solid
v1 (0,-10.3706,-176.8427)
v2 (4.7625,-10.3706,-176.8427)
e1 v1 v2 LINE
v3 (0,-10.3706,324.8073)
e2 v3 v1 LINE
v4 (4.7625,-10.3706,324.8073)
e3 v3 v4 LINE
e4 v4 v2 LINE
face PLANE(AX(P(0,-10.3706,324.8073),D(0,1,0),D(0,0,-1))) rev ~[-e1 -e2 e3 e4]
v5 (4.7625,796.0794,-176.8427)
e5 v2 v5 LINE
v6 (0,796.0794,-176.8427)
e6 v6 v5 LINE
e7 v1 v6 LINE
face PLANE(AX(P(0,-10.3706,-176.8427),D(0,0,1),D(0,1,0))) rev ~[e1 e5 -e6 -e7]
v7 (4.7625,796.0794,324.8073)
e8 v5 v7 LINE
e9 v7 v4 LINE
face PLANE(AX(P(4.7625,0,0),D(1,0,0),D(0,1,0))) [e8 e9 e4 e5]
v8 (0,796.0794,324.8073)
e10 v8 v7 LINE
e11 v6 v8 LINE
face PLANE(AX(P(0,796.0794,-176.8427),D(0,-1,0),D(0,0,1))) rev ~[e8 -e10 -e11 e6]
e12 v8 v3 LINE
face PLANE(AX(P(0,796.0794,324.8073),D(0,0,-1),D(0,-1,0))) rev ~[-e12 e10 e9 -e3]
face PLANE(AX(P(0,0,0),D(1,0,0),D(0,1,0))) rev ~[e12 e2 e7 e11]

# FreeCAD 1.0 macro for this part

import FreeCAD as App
import Part
import Sketcher
from FreeCAD import Vector
Q = App.Units.Quantity

doc = App.newDocument("Part")
body = doc.addObject("PartDesign::Body", "Body")

# Sketch on YZ plane
sketch1 = body.newObject("Sketcher::SketchObject", "Sketch")
sketch1.AttachmentSupport = (doc.getObject("YZ_Plane"), [""])
sketch1.MapMode = "FlatFace"
sketch1.addGeometry([
    Part.LineSegment(Vector(796, -177, 0), Vector(796, 325, 0)),
    Part.LineSegment(Vector(796, 325, 0), Vector(-10, 325, 0)),
    Part.LineSegment(Vector(-10, 325, 0), Vector(-10, -177, 0)),
    Part.LineSegment(Vector(-10, -177, 0), Vector(796, -177, 0)),
], False)
sketch1.addConstraint([
    Sketcher.Constraint("Coincident", 0, 2, 1, 1),
    Sketcher.Constraint("Coincident", 1, 2, 2, 1),
    Sketcher.Constraint("Coincident", 2, 2, 3, 1),
    Sketcher.Constraint("Coincident", 3, 2, 0, 1),
    Sketcher.Constraint("Vertical", 0),
    Sketcher.Constraint("Horizontal", 1),
    Sketcher.Constraint("Vertical", 2),
    Sketcher.Constraint("Horizontal", 3),
    Sketcher.Constraint("DistanceX", 1, 2, 1, 1, Q("31.75 in")),
    Sketcher.Constraint("DistanceY", 0, 1, 0, 2, Q("19.75 in")),
    Sketcher.Constraint("DistanceX", -1, 1, 0, 2, Q("31.3417 in")),
    Sketcher.Constraint("DistanceY", -1, 1, 0, 2, Q("12.7877 in")),
])
pad1 = body.newObject("PartDesign::Pad", "Pad")
pad1.Profile = sketch1
pad1.Length = Q("0.1875 in")

doc.recompute()
